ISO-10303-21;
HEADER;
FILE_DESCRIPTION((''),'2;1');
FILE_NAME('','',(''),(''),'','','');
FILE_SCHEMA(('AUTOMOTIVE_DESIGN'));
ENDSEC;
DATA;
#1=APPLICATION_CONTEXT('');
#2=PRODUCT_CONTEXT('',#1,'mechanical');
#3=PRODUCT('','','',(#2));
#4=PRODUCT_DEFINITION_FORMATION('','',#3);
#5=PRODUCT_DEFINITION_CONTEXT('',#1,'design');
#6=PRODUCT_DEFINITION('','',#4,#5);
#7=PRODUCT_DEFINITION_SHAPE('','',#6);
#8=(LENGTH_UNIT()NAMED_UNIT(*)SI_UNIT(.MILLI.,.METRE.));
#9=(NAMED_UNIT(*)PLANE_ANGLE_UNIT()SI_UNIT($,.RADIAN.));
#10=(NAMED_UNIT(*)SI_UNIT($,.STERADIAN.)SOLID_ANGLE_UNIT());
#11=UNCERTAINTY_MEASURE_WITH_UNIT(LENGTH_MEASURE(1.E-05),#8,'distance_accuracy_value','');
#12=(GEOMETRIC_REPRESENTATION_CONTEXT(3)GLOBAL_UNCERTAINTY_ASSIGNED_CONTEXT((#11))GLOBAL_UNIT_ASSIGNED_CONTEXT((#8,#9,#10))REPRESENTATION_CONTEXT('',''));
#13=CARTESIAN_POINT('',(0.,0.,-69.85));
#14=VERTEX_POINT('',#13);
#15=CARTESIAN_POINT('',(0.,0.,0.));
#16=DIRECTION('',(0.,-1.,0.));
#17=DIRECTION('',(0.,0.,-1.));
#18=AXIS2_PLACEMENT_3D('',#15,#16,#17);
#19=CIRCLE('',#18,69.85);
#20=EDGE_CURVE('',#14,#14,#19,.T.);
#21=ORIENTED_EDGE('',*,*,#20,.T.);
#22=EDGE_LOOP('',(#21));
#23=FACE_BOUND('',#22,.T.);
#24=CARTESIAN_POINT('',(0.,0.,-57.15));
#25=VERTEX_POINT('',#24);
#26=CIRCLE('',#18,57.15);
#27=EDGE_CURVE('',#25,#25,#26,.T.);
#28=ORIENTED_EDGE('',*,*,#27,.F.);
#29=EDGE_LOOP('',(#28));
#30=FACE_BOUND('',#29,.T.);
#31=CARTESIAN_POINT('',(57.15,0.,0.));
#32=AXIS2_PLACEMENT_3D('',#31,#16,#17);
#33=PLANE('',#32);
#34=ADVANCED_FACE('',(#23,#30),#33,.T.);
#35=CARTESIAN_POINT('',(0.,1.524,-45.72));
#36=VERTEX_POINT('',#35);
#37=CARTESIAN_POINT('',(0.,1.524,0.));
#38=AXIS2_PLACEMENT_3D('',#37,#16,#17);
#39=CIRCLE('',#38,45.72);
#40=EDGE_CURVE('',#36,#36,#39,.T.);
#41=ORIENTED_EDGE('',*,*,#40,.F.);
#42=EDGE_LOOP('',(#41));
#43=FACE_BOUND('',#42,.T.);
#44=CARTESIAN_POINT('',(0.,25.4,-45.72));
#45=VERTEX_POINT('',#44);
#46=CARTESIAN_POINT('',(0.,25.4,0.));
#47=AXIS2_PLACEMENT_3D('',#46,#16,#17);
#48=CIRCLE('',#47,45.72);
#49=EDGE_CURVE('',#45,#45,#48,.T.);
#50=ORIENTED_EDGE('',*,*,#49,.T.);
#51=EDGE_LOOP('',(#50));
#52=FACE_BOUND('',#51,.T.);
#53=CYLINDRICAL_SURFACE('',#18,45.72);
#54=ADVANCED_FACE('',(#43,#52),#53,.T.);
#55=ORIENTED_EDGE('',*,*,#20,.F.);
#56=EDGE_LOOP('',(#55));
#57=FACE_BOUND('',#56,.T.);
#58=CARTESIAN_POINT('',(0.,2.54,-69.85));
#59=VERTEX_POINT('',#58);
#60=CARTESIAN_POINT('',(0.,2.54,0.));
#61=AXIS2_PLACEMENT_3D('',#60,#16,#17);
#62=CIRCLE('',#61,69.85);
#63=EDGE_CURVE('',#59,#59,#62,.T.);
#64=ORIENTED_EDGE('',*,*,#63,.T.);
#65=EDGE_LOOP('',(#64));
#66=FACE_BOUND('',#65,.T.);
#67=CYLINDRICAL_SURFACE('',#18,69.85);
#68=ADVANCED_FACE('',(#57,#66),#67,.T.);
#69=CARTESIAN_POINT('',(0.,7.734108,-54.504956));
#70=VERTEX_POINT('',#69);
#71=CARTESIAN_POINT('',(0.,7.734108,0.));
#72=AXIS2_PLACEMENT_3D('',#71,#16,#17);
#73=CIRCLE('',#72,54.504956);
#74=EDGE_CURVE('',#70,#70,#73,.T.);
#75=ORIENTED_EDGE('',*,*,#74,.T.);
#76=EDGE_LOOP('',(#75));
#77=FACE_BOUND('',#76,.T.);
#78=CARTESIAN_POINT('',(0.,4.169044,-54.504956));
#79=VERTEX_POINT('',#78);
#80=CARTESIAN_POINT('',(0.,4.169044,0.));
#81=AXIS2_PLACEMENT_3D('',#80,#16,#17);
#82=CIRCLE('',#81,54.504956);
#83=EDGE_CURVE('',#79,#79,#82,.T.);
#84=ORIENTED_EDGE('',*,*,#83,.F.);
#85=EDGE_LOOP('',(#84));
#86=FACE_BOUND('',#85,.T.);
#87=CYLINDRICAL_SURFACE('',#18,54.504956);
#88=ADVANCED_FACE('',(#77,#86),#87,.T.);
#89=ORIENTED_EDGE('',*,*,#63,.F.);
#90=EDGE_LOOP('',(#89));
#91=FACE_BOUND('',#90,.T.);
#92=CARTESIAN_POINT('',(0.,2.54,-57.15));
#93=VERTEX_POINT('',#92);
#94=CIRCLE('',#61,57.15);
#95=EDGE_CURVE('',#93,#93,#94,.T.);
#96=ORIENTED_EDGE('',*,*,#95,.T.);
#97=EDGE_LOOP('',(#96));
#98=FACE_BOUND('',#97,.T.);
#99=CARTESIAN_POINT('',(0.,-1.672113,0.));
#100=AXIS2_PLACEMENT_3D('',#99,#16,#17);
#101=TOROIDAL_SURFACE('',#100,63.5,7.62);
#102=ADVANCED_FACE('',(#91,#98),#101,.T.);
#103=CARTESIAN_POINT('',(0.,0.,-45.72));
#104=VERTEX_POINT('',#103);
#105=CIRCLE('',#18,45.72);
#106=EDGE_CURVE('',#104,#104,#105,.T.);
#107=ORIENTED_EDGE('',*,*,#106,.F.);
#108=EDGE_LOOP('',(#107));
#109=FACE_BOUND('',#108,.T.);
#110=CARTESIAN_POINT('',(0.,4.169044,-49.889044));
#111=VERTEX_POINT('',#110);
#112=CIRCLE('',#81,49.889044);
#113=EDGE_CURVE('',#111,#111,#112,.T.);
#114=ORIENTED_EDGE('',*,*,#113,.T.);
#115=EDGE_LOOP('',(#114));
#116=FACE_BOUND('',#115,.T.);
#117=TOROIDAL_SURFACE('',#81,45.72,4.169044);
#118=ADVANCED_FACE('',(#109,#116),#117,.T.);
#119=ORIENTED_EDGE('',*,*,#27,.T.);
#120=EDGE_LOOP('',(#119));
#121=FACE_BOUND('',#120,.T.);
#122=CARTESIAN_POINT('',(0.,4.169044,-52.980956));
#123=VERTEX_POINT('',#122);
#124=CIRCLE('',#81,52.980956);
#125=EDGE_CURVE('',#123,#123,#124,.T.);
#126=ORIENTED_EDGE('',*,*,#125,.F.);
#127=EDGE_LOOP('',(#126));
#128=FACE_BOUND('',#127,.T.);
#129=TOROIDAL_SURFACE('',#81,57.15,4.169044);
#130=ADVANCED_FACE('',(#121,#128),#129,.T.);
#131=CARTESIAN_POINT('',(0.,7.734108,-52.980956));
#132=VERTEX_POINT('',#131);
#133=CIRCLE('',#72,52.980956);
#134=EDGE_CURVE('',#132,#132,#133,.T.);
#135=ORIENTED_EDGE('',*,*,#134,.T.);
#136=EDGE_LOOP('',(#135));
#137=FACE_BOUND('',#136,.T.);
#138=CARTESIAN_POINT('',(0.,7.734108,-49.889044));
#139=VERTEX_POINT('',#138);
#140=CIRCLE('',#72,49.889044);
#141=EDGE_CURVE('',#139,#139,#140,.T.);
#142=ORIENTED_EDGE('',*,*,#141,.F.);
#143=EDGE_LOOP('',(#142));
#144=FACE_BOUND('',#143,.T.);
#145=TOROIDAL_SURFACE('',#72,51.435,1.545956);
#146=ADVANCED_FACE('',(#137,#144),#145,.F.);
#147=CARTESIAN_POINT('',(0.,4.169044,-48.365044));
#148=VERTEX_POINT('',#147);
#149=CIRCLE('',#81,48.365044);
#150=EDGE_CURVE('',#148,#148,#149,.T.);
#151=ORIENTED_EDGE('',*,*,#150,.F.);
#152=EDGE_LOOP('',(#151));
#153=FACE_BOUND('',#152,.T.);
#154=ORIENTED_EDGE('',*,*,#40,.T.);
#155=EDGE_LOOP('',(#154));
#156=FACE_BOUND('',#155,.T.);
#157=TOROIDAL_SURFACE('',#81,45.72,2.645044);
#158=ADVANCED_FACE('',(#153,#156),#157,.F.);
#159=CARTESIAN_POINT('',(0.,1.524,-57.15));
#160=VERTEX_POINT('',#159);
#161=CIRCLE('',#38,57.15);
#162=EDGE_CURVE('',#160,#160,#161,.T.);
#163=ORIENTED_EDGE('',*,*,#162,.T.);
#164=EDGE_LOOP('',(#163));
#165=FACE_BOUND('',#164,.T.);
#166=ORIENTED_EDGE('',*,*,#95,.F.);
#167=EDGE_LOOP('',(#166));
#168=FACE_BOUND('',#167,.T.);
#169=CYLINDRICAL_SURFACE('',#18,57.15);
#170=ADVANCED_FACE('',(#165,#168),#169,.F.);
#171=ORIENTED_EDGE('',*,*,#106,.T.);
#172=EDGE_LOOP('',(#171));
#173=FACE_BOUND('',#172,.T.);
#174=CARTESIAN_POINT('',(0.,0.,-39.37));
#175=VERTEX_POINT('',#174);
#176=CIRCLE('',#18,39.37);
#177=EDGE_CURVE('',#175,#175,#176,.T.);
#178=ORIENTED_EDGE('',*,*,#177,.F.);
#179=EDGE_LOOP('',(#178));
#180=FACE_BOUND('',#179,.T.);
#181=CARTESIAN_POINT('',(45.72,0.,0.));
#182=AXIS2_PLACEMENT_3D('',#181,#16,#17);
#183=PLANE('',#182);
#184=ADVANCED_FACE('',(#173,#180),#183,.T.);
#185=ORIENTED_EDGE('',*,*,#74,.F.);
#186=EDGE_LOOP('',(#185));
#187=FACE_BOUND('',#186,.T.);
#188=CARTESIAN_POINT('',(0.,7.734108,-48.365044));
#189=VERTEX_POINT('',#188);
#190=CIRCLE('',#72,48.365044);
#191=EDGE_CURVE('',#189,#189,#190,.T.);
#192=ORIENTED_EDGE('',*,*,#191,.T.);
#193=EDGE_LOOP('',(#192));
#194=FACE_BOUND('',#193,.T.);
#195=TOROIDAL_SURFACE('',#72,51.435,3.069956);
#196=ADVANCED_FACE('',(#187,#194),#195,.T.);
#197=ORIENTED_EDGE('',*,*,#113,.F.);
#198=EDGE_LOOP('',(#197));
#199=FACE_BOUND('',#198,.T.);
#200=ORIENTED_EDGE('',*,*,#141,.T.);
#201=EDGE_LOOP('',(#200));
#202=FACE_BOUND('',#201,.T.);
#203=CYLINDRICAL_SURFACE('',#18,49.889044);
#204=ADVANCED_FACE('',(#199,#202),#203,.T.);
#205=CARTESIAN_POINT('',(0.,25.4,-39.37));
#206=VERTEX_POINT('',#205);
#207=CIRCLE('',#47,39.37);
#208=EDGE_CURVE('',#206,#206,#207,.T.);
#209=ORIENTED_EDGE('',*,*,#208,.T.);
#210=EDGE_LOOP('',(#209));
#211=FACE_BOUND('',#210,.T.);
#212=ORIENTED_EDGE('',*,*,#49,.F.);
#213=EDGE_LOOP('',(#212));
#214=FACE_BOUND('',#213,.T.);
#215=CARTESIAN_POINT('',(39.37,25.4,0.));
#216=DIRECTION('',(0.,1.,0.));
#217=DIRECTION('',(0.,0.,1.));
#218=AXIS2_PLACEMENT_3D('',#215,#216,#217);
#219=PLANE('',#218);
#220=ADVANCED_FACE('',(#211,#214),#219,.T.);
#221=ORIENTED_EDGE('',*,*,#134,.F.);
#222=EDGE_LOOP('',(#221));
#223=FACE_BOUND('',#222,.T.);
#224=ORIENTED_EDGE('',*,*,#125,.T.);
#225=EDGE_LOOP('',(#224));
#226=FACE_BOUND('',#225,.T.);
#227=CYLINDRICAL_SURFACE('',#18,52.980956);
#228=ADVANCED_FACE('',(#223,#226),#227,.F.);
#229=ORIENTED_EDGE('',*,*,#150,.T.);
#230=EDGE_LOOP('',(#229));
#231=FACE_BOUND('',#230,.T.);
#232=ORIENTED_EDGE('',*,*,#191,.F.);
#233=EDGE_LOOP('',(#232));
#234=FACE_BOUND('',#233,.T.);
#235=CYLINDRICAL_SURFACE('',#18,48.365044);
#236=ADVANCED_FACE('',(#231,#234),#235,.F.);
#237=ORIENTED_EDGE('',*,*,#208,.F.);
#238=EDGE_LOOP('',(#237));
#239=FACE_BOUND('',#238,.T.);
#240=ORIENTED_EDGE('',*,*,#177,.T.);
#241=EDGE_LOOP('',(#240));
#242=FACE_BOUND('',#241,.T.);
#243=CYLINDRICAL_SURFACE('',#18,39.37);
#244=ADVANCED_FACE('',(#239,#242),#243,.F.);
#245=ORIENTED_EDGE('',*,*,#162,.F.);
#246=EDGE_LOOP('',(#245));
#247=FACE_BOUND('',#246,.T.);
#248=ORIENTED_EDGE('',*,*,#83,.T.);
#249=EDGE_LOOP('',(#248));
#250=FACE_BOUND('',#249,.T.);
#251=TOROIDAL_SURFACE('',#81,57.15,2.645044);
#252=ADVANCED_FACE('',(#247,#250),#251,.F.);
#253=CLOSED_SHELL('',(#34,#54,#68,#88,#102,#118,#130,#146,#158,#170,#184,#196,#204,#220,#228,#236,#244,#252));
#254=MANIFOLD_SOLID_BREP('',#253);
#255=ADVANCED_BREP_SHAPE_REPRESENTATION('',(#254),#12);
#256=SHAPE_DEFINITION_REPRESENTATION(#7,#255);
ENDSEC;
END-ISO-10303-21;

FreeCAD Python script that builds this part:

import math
import FreeCAD as App
import Part
import Sketcher

V = App.Vector
Q = App.Units.Quantity

doc = App.newDocument("Part")
body = doc.addObject("PartDesign::Body", "Body")

sketch1 = body.newObject("Sketcher::SketchObject", "Sketch")
sketch1.AttachmentSupport = (doc.getObject("XY_Plane"), [""])
sketch1.MapMode = "FlatFace"
sketch1.addGeometry([
    Part.LineSegment(V(57.1, 0, 0), V(69.8, 0, 0)),
    Part.LineSegment(V(69.8, 0, 0), V(69.8, 2.5, 0)),
    Part.ArcOfCircle(Part.Circle(V(63.5, -1.7, 0), V(0, 0, 1), 7.6), math.radians(34), math.radians(146)),
    Part.LineSegment(V(57.1, 2.5, 0), V(57.1, 1.5, 0)),
    Part.ArcOfCircle(Part.Circle(V(57.1, 4.2, 0), V(0, 0, 1), 2.6), math.radians(180), math.radians(270)),
    Part.LineSegment(V(54.5, 4.2, 0), V(54.5, 7.7, 0)),
    Part.ArcOfCircle(Part.Circle(V(51.4, 7.7, 0), V(0, 0, 1), 3.1), math.radians(0), math.radians(180)),
    Part.LineSegment(V(48.4, 7.7, 0), V(48.4, 4.2, 0)),
    Part.ArcOfCircle(Part.Circle(V(45.7, 4.2, 0), V(0, 0, 1), 2.6), math.radians(-90), math.radians(0)),
    Part.LineSegment(V(45.7, 1.5, 0), V(45.7, 25.4, 0)),
    Part.LineSegment(V(45.7, 25.4, 0), V(39.4, 25.4, 0)),
    Part.LineSegment(V(39.4, 25.4, 0), V(39.4, 0, 0)),
    Part.LineSegment(V(39.4, 0, 0), V(45.7, 0, 0)),
    Part.ArcOfCircle(Part.Circle(V(45.7, 4.2, 0), V(0, 0, 1), 4.2), math.radians(-90), math.radians(0)),
    Part.LineSegment(V(49.9, 4.2, 0), V(49.9, 7.7, 0)),
    Part.ArcOfCircle(Part.Circle(V(51.4, 7.7, 0), V(0, 0, 1), 1.5), math.radians(0), math.radians(180)),
    Part.LineSegment(V(53, 7.7, 0), V(53, 4.2, 0)),
    Part.ArcOfCircle(Part.Circle(V(57.1, 4.2, 0), V(0, 0, 1), 4.2), math.radians(180), math.radians(270)),
], False)
sketch1.addConstraint([
    Sketcher.Constraint("Coincident", 0, 2, 1, 1),
    Sketcher.Constraint("Coincident", 1, 2, 2, 1),
    Sketcher.Constraint("Coincident", 2, 2, 3, 1),
    Sketcher.Constraint("Coincident", 3, 2, 4, 2),
    Sketcher.Constraint("Tangent", 4, 1, 5, 1),
    Sketcher.Constraint("Tangent", 5, 2, 6, 1),
    Sketcher.Constraint("Tangent", 6, 2, 7, 1),
    Sketcher.Constraint("Tangent", 7, 2, 8, 2),
    Sketcher.Constraint("Coincident", 8, 1, 9, 1),
    Sketcher.Constraint("Coincident", 9, 2, 10, 1),
    Sketcher.Constraint("Coincident", 10, 2, 11, 1),
    Sketcher.Constraint("Coincident", 11, 2, 12, 1),
    Sketcher.Constraint("Tangent", 12, 2, 13, 1),
    Sketcher.Constraint("Tangent", 13, 2, 14, 1),
    Sketcher.Constraint("Tangent", 14, 2, 15, 2),
    Sketcher.Constraint("Tangent", 15, 1, 16, 1),
    Sketcher.Constraint("Tangent", 16, 2, 17, 1),
    Sketcher.Constraint("Tangent", 17, 2, 0, 1),
    Sketcher.Constraint("Horizontal", 0),
    Sketcher.Constraint("Vertical", 1),
    Sketcher.Constraint("Vertical", 3),
    Sketcher.Constraint("Vertical", 5),
    Sketcher.Constraint("Vertical", 7),
    Sketcher.Constraint("Vertical", 9),
    Sketcher.Constraint("Horizontal", 10),
    Sketcher.Constraint("Vertical", 11),
    Sketcher.Constraint("Horizontal", 12),
    Sketcher.Constraint("Vertical", 14),
    Sketcher.Constraint("Vertical", 16),
    Sketcher.Constraint("Coincident", 13, 3, 8, 3),
    Sketcher.Constraint("Coincident", 15, 3, 6, 3),
    Sketcher.Constraint("Coincident", 17, 3, 4, 3),
    Sketcher.Constraint("Equal", 4, 8),
    Sketcher.Constraint("PointOnObject", 0, 2, -1),
    Sketcher.Constraint("PointOnObject", 11, 2, -1),
    Sketcher.Constraint("Horizontal", 1, 2, 2, 2),
    Sketcher.Constraint("Vertical", 17, 3, 2, 2),
    Sketcher.Constraint("Vertical", 13, 3, 8, 1),
    Sketcher.Constraint("Radius", 2, Q("0.3 in")),
    Sketcher.Constraint("DistanceY", 11, 2, 11, 1, Q("1 in")),
    Sketcher.Constraint("DistanceX", 0, 1, 0, 2, Q("0.5 in")),
    Sketcher.Constraint("DistanceY", 1, 1, 1, 2, Q("0.1 in")),
    Sketcher.Constraint("DistanceX", 10, 2, 10, 1, Q("0.25 in")),
    Sketcher.Constraint("DistanceY", 3, 2, 3, 1, Q("0.04 in")),
    Sketcher.Constraint("DistanceX", -1, 1, 2, 3, Q("2.5 in")),
    Sketcher.Constraint("DistanceX", -1, 1, 8, 3, Q("1.8 in")),
    Sketcher.Constraint("Radius", 4, Q("2.645044 mm")),
    Sketcher.Constraint("DistanceY", 5, 1, 5, 2, Q("3.565064 mm")),
])
revolution = body.newObject("PartDesign::Revolution", "Revolution")
revolution.Profile = sketch1
revolution.ReferenceAxis = (sketch1, ["V_Axis"])
revolution.Angle = 360

doc.recompute()
